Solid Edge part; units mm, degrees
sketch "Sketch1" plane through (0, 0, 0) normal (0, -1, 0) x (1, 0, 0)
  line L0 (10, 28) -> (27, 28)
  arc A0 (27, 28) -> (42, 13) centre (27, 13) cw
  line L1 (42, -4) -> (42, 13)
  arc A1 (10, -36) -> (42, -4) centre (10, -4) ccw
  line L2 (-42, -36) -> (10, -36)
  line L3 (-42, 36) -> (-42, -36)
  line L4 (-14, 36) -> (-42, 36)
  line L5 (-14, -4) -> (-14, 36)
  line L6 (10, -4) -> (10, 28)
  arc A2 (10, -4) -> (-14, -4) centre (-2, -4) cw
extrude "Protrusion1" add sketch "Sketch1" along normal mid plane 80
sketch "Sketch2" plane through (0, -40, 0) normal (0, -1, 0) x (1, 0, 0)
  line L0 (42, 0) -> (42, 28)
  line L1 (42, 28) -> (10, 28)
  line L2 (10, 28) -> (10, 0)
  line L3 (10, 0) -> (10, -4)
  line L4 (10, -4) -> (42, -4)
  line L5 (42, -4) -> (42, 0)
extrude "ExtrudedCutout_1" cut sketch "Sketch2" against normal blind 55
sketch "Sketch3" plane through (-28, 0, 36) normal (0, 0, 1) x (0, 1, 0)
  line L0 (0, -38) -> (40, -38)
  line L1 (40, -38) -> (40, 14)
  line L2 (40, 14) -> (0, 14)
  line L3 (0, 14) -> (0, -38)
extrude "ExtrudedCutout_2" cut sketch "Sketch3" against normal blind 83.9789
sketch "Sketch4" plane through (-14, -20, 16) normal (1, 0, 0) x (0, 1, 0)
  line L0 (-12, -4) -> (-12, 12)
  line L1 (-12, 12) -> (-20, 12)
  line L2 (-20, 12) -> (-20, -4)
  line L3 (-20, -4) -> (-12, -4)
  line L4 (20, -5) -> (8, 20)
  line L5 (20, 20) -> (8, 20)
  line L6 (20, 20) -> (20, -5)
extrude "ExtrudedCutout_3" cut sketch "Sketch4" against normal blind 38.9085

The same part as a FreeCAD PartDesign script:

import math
import FreeCAD as App
import Part
import Sketcher
Q = App.Units.Quantity

doc = App.newDocument("Part")
body = doc.addObject("PartDesign::Body", "Body")

# Sketch on XZ plane
sketch1 = doc.addObject("Sketcher::SketchObject", "Sketch")
body.addObject(sketch1)
sketch1.AttachmentSupport = (doc.XZ_Plane, [""])
sketch1.MapMode = "FlatFace"
sketch1.addGeometry(Part.LineSegment(App.Vector(27, 28, 0), App.Vector(10, 28, 0)), False)
sketch1.addGeometry(Part.LineSegment(App.Vector(10, 28, 0), App.Vector(10, -4, 0)), False)
sketch1.addGeometry(Part.ArcOfCircle(Part.Circle(App.Vector(-2, -4, 0), App.Vector(0, 0, 1), 12), math.radians(180), math.radians(360)), False)
sketch1.addGeometry(Part.LineSegment(App.Vector(-14, -4, 0), App.Vector(-14, 36, 0)), False)
sketch1.addGeometry(Part.LineSegment(App.Vector(-14, 36, 0), App.Vector(-42, 36, 0)), False)
sketch1.addGeometry(Part.LineSegment(App.Vector(-42, 36, 0), App.Vector(-42, -36, 0)), False)
sketch1.addGeometry(Part.LineSegment(App.Vector(-42, -36, 0), App.Vector(10, -36, 0)), False)
sketch1.addGeometry(Part.ArcOfCircle(Part.Circle(App.Vector(10, -4, 0), App.Vector(0, 0, 1), 32), math.radians(-90), math.radians(0)), False)
sketch1.addGeometry(Part.LineSegment(App.Vector(42, -4, 0), App.Vector(42, 13, 0)), False)
sketch1.addGeometry(Part.ArcOfCircle(Part.Circle(App.Vector(27, 13, 0), App.Vector(0, 0, 1), 15), math.radians(0), math.radians(90)), False)
sketch1.addConstraint(Sketcher.Constraint("Coincident", 0, 2, 1, 1))
sketch1.addConstraint(Sketcher.Constraint("Tangent", 1, 2, 2, 2))
sketch1.addConstraint(Sketcher.Constraint("Tangent", 2, 1, 3, 1))
sketch1.addConstraint(Sketcher.Constraint("Coincident", 3, 2, 4, 1))
sketch1.addConstraint(Sketcher.Constraint("Coincident", 4, 2, 5, 1))
sketch1.addConstraint(Sketcher.Constraint("Coincident", 5, 2, 6, 1))
sketch1.addConstraint(Sketcher.Constraint("Tangent", 6, 2, 7, 1))
sketch1.addConstraint(Sketcher.Constraint("Tangent", 7, 2, 8, 1))
sketch1.addConstraint(Sketcher.Constraint("Tangent", 8, 2, 9, 1))
sketch1.addConstraint(Sketcher.Constraint("Tangent", 9, 2, 0, 1))
sketch1.addConstraint(Sketcher.Constraint("Horizontal", 0))
sketch1.addConstraint(Sketcher.Constraint("Vertical", 1))
sketch1.addConstraint(Sketcher.Constraint("Vertical", 3))
sketch1.addConstraint(Sketcher.Constraint("Horizontal", 4))
sketch1.addConstraint(Sketcher.Constraint("Vertical", 5))
sketch1.addConstraint(Sketcher.Constraint("Horizontal", 6))
sketch1.addConstraint(Sketcher.Constraint("Vertical", 8))
sketch1.addConstraint(Sketcher.Constraint("Coincident", 1, 2, 7, 3))
sketch1.addConstraint(Sketcher.Constraint("Equal", 0, 8))
sketch1.addConstraint(Sketcher.Constraint("Radius", 2, Q("12 mm")))
sketch1.addConstraint(Sketcher.Constraint("Radius", 7, Q("32 mm")))
sketch1.addConstraint(Sketcher.Constraint("Radius", 9, Q("15 mm")))
sketch1.addConstraint(Sketcher.Constraint("DistanceX", 4, 2, 4, 1, Q("28 mm")))
sketch1.addConstraint(Sketcher.Constraint("DistanceY", 3, 1, 3, 2, Q("40 mm")))
sketch1.addConstraint(Sketcher.Constraint("DistanceX", 2, 3, -1, 1, Q("2 mm")))
sketch1.addConstraint(Sketcher.Constraint("DistanceY", 2, 3, -1, 1, Q("4 mm")))
pad1 = doc.addObject("PartDesign::Pad", "Pad")
body.addObject(pad1)
pad1.Profile = sketch1
pad1.Length = 80
pad1.Midplane = True

# Sketch on XZ plane
sketch2 = doc.addObject("Sketcher::SketchObject", "Sketch001")
body.addObject(sketch2)
sketch2.AttachmentSupport = (doc.XZ_Plane, [""])
sketch2.MapMode = "FlatFace"
sketch2.AttachmentOffset = App.Placement(App.Vector(0, 0, 40), App.Rotation())
sketch2.addGeometry(Part.LineSegment(App.Vector(42, -4, 0), App.Vector(42, 28, 0)), False)
sketch2.addGeometry(Part.LineSegment(App.Vector(42, 28, 0), App.Vector(10, 28, 0)), False)
sketch2.addGeometry(Part.LineSegment(App.Vector(10, 28, 0), App.Vector(10, -4, 0)), False)
sketch2.addGeometry(Part.LineSegment(App.Vector(10, -4, 0), App.Vector(42, -4, 0)), False)
sketch2.addConstraint(Sketcher.Constraint("Coincident", 0, 2, 1, 1))
sketch2.addConstraint(Sketcher.Constraint("Coincident", 1, 2, 2, 1))
sketch2.addConstraint(Sketcher.Constraint("Coincident", 2, 2, 3, 1))
sketch2.addConstraint(Sketcher.Constraint("Coincident", 3, 2, 0, 1))
sketch2.addConstraint(Sketcher.Constraint("Vertical", 0))
sketch2.addConstraint(Sketcher.Constraint("Horizontal", 1))
sketch2.addConstraint(Sketcher.Constraint("Vertical", 2))
sketch2.addConstraint(Sketcher.Constraint("Horizontal", 3))
sketch2.addConstraint(Sketcher.Constraint("Equal", 3, 0))
sketch2.addConstraint(Sketcher.Constraint("DistanceX", 1, 2, 1, 1, Q("32 mm")))
sketch2.addConstraint(Sketcher.Constraint("DistanceX", -1, 1, 0, 2, Q("42 mm")))
sketch2.addConstraint(Sketcher.Constraint("DistanceY", -1, 1, 0, 2, Q("28 mm")))
pocket1 = doc.addObject("PartDesign::Pocket", "Pocket")
body.addObject(pocket1)
pocket1.Profile = sketch2
pocket1.Length = 55

# Sketch on XY plane
sketch3 = doc.addObject("Sketcher::SketchObject", "Sketch002")
body.addObject(sketch3)
sketch3.AttachmentSupport = (doc.XY_Plane, [""])
sketch3.MapMode = "FlatFace"
sketch3.AttachmentOffset = App.Placement(App.Vector(0, 0, 36), App.Rotation())
sketch3.addGeometry(Part.LineSegment(App.Vector(-42, 0, 0), App.Vector(10, 0, 0)), False)
sketch3.addGeometry(Part.LineSegment(App.Vector(10, 0, 0), App.Vector(10, 40, 0)), False)
sketch3.addGeometry(Part.LineSegment(App.Vector(10, 40, 0), App.Vector(-42, 40, 0)), False)
sketch3.addGeometry(Part.LineSegment(App.Vector(-42, 40, 0), App.Vector(-42, 0, 0)), False)
sketch3.addConstraint(Sketcher.Constraint("Coincident", 0, 2, 1, 1))
sketch3.addConstraint(Sketcher.Constraint("Coincident", 1, 2, 2, 1))
sketch3.addConstraint(Sketcher.Constraint("Coincident", 2, 2, 3, 1))
sketch3.addConstraint(Sketcher.Constraint("Coincident", 3, 2, 0, 1))
sketch3.addConstraint(Sketcher.Constraint("Horizontal", 0))
sketch3.addConstraint(Sketcher.Constraint("Vertical", 1))
sketch3.addConstraint(Sketcher.Constraint("Horizontal", 2))
sketch3.addConstraint(Sketcher.Constraint("Vertical", 3))
sketch3.addConstraint(Sketcher.Constraint("PointOnObject", 0, 2, -1))
sketch3.addConstraint(Sketcher.Constraint("DistanceX", 0, 1, 0, 2, Q("52 mm")))
sketch3.addConstraint(Sketcher.Constraint("DistanceY", 1, 1, 1, 2, Q("40 mm")))
sketch3.addConstraint(Sketcher.Constraint("DistanceX", -1, 1, 0, 2, Q("10 mm")))
pocket2 = doc.addObject("PartDesign::Pocket", "Pocket001")
body.addObject(pocket2)
pocket2.Profile = sketch3
pocket2.Length = 83.9789

# Sketch on YZ plane
sketch4 = doc.addObject("Sketcher::SketchObject", "Sketch003")
body.addObject(sketch4)
sketch4.AttachmentSupport = (doc.YZ_Plane, [""])
sketch4.MapMode = "FlatFace"
sketch4.AttachmentOffset = App.Placement(App.Vector(0, 0, -14), App.Rotation())
sketch4.addGeometry(Part.LineSegment(App.Vector(-40, 12, 0), App.Vector(-32, 12, 0)), False)
sketch4.addGeometry(Part.LineSegment(App.Vector(-32, 12, 0), App.Vector(-32, 28, 0)), False)
sketch4.addGeometry(Part.LineSegment(App.Vector(-32, 28, 0), App.Vector(-40, 28, 0)), False)
sketch4.addGeometry(Part.LineSegment(App.Vector(-40, 28, 0), App.Vector(-40, 12, 0)), False)
sketch4.addGeometry(Part.LineSegment(App.Vector(-12, 36, 0), App.Vector(0, 11, 0)), False)
sketch4.addGeometry(Part.LineSegment(App.Vector(0, 11, 0), App.Vector(0, 36, 0)), False)
sketch4.addGeometry(Part.LineSegment(App.Vector(0, 36, 0), App.Vector(-12, 36, 0)), False)
sketch4.addConstraint(Sketcher.Constraint("Coincident", 0, 2, 1, 1))
sketch4.addConstraint(Sketcher.Constraint("Coincident", 1, 2, 2, 1))
sketch4.addConstraint(Sketcher.Constraint("Coincident", 2, 2, 3, 1))
sketch4.addConstraint(Sketcher.Constraint("Coincident", 3, 2, 0, 1))
sketch4.addConstraint(Sketcher.Constraint("Coincident", 4, 2, 5, 1))
sketch4.addConstraint(Sketcher.Constraint("Coincident", 5, 2, 6, 1))
sketch4.addConstraint(Sketcher.Constraint("Coincident", 6, 2, 4, 1))
sketch4.addConstraint(Sketcher.Constraint("Horizontal", 0))
sketch4.addConstraint(Sketcher.Constraint("Vertical", 1))
sketch4.addConstraint(Sketcher.Constraint("Horizontal", 2))
sketch4.addConstraint(Sketcher.Constraint("Vertical", 3))
sketch4.addConstraint(Sketcher.Constraint("Vertical", 5))
sketch4.addConstraint(Sketcher.Constraint("Horizontal", 6))
sketch4.addConstraint(Sketcher.Constraint("PointOnObject", 4, 2, -2))
sketch4.addConstraint(Sketcher.Constraint("DistanceX", 0, 1, 0, 2, Q("8 mm")))
sketch4.addConstraint(Sketcher.Constraint("DistanceX", 6, 2, 6, 1, Q("12 mm")))
sketch4.addConstraint(Sketcher.Constraint("DistanceY", 1, 1, 1, 2, Q("16 mm")))
sketch4.addConstraint(Sketcher.Constraint("DistanceY", 5, 1, 5, 2, Q("25 mm")))
sketch4.addConstraint(Sketcher.Constraint("DistanceX", 0, 2, -1, 1, Q("32 mm")))
sketch4.addConstraint(Sketcher.Constraint("DistanceY", -1, 1, 0, 2, Q("12 mm")))
sketch4.addConstraint(Sketcher.Constraint("DistanceY", -1, 1, 4, 2, Q("11 mm")))
pocket3 = doc.addObject("PartDesign::Pocket", "Pocket002")
body.addObject(pocket3)
pocket3.Profile = sketch4
pocket3.Length = 38.9085

doc.recompute()
